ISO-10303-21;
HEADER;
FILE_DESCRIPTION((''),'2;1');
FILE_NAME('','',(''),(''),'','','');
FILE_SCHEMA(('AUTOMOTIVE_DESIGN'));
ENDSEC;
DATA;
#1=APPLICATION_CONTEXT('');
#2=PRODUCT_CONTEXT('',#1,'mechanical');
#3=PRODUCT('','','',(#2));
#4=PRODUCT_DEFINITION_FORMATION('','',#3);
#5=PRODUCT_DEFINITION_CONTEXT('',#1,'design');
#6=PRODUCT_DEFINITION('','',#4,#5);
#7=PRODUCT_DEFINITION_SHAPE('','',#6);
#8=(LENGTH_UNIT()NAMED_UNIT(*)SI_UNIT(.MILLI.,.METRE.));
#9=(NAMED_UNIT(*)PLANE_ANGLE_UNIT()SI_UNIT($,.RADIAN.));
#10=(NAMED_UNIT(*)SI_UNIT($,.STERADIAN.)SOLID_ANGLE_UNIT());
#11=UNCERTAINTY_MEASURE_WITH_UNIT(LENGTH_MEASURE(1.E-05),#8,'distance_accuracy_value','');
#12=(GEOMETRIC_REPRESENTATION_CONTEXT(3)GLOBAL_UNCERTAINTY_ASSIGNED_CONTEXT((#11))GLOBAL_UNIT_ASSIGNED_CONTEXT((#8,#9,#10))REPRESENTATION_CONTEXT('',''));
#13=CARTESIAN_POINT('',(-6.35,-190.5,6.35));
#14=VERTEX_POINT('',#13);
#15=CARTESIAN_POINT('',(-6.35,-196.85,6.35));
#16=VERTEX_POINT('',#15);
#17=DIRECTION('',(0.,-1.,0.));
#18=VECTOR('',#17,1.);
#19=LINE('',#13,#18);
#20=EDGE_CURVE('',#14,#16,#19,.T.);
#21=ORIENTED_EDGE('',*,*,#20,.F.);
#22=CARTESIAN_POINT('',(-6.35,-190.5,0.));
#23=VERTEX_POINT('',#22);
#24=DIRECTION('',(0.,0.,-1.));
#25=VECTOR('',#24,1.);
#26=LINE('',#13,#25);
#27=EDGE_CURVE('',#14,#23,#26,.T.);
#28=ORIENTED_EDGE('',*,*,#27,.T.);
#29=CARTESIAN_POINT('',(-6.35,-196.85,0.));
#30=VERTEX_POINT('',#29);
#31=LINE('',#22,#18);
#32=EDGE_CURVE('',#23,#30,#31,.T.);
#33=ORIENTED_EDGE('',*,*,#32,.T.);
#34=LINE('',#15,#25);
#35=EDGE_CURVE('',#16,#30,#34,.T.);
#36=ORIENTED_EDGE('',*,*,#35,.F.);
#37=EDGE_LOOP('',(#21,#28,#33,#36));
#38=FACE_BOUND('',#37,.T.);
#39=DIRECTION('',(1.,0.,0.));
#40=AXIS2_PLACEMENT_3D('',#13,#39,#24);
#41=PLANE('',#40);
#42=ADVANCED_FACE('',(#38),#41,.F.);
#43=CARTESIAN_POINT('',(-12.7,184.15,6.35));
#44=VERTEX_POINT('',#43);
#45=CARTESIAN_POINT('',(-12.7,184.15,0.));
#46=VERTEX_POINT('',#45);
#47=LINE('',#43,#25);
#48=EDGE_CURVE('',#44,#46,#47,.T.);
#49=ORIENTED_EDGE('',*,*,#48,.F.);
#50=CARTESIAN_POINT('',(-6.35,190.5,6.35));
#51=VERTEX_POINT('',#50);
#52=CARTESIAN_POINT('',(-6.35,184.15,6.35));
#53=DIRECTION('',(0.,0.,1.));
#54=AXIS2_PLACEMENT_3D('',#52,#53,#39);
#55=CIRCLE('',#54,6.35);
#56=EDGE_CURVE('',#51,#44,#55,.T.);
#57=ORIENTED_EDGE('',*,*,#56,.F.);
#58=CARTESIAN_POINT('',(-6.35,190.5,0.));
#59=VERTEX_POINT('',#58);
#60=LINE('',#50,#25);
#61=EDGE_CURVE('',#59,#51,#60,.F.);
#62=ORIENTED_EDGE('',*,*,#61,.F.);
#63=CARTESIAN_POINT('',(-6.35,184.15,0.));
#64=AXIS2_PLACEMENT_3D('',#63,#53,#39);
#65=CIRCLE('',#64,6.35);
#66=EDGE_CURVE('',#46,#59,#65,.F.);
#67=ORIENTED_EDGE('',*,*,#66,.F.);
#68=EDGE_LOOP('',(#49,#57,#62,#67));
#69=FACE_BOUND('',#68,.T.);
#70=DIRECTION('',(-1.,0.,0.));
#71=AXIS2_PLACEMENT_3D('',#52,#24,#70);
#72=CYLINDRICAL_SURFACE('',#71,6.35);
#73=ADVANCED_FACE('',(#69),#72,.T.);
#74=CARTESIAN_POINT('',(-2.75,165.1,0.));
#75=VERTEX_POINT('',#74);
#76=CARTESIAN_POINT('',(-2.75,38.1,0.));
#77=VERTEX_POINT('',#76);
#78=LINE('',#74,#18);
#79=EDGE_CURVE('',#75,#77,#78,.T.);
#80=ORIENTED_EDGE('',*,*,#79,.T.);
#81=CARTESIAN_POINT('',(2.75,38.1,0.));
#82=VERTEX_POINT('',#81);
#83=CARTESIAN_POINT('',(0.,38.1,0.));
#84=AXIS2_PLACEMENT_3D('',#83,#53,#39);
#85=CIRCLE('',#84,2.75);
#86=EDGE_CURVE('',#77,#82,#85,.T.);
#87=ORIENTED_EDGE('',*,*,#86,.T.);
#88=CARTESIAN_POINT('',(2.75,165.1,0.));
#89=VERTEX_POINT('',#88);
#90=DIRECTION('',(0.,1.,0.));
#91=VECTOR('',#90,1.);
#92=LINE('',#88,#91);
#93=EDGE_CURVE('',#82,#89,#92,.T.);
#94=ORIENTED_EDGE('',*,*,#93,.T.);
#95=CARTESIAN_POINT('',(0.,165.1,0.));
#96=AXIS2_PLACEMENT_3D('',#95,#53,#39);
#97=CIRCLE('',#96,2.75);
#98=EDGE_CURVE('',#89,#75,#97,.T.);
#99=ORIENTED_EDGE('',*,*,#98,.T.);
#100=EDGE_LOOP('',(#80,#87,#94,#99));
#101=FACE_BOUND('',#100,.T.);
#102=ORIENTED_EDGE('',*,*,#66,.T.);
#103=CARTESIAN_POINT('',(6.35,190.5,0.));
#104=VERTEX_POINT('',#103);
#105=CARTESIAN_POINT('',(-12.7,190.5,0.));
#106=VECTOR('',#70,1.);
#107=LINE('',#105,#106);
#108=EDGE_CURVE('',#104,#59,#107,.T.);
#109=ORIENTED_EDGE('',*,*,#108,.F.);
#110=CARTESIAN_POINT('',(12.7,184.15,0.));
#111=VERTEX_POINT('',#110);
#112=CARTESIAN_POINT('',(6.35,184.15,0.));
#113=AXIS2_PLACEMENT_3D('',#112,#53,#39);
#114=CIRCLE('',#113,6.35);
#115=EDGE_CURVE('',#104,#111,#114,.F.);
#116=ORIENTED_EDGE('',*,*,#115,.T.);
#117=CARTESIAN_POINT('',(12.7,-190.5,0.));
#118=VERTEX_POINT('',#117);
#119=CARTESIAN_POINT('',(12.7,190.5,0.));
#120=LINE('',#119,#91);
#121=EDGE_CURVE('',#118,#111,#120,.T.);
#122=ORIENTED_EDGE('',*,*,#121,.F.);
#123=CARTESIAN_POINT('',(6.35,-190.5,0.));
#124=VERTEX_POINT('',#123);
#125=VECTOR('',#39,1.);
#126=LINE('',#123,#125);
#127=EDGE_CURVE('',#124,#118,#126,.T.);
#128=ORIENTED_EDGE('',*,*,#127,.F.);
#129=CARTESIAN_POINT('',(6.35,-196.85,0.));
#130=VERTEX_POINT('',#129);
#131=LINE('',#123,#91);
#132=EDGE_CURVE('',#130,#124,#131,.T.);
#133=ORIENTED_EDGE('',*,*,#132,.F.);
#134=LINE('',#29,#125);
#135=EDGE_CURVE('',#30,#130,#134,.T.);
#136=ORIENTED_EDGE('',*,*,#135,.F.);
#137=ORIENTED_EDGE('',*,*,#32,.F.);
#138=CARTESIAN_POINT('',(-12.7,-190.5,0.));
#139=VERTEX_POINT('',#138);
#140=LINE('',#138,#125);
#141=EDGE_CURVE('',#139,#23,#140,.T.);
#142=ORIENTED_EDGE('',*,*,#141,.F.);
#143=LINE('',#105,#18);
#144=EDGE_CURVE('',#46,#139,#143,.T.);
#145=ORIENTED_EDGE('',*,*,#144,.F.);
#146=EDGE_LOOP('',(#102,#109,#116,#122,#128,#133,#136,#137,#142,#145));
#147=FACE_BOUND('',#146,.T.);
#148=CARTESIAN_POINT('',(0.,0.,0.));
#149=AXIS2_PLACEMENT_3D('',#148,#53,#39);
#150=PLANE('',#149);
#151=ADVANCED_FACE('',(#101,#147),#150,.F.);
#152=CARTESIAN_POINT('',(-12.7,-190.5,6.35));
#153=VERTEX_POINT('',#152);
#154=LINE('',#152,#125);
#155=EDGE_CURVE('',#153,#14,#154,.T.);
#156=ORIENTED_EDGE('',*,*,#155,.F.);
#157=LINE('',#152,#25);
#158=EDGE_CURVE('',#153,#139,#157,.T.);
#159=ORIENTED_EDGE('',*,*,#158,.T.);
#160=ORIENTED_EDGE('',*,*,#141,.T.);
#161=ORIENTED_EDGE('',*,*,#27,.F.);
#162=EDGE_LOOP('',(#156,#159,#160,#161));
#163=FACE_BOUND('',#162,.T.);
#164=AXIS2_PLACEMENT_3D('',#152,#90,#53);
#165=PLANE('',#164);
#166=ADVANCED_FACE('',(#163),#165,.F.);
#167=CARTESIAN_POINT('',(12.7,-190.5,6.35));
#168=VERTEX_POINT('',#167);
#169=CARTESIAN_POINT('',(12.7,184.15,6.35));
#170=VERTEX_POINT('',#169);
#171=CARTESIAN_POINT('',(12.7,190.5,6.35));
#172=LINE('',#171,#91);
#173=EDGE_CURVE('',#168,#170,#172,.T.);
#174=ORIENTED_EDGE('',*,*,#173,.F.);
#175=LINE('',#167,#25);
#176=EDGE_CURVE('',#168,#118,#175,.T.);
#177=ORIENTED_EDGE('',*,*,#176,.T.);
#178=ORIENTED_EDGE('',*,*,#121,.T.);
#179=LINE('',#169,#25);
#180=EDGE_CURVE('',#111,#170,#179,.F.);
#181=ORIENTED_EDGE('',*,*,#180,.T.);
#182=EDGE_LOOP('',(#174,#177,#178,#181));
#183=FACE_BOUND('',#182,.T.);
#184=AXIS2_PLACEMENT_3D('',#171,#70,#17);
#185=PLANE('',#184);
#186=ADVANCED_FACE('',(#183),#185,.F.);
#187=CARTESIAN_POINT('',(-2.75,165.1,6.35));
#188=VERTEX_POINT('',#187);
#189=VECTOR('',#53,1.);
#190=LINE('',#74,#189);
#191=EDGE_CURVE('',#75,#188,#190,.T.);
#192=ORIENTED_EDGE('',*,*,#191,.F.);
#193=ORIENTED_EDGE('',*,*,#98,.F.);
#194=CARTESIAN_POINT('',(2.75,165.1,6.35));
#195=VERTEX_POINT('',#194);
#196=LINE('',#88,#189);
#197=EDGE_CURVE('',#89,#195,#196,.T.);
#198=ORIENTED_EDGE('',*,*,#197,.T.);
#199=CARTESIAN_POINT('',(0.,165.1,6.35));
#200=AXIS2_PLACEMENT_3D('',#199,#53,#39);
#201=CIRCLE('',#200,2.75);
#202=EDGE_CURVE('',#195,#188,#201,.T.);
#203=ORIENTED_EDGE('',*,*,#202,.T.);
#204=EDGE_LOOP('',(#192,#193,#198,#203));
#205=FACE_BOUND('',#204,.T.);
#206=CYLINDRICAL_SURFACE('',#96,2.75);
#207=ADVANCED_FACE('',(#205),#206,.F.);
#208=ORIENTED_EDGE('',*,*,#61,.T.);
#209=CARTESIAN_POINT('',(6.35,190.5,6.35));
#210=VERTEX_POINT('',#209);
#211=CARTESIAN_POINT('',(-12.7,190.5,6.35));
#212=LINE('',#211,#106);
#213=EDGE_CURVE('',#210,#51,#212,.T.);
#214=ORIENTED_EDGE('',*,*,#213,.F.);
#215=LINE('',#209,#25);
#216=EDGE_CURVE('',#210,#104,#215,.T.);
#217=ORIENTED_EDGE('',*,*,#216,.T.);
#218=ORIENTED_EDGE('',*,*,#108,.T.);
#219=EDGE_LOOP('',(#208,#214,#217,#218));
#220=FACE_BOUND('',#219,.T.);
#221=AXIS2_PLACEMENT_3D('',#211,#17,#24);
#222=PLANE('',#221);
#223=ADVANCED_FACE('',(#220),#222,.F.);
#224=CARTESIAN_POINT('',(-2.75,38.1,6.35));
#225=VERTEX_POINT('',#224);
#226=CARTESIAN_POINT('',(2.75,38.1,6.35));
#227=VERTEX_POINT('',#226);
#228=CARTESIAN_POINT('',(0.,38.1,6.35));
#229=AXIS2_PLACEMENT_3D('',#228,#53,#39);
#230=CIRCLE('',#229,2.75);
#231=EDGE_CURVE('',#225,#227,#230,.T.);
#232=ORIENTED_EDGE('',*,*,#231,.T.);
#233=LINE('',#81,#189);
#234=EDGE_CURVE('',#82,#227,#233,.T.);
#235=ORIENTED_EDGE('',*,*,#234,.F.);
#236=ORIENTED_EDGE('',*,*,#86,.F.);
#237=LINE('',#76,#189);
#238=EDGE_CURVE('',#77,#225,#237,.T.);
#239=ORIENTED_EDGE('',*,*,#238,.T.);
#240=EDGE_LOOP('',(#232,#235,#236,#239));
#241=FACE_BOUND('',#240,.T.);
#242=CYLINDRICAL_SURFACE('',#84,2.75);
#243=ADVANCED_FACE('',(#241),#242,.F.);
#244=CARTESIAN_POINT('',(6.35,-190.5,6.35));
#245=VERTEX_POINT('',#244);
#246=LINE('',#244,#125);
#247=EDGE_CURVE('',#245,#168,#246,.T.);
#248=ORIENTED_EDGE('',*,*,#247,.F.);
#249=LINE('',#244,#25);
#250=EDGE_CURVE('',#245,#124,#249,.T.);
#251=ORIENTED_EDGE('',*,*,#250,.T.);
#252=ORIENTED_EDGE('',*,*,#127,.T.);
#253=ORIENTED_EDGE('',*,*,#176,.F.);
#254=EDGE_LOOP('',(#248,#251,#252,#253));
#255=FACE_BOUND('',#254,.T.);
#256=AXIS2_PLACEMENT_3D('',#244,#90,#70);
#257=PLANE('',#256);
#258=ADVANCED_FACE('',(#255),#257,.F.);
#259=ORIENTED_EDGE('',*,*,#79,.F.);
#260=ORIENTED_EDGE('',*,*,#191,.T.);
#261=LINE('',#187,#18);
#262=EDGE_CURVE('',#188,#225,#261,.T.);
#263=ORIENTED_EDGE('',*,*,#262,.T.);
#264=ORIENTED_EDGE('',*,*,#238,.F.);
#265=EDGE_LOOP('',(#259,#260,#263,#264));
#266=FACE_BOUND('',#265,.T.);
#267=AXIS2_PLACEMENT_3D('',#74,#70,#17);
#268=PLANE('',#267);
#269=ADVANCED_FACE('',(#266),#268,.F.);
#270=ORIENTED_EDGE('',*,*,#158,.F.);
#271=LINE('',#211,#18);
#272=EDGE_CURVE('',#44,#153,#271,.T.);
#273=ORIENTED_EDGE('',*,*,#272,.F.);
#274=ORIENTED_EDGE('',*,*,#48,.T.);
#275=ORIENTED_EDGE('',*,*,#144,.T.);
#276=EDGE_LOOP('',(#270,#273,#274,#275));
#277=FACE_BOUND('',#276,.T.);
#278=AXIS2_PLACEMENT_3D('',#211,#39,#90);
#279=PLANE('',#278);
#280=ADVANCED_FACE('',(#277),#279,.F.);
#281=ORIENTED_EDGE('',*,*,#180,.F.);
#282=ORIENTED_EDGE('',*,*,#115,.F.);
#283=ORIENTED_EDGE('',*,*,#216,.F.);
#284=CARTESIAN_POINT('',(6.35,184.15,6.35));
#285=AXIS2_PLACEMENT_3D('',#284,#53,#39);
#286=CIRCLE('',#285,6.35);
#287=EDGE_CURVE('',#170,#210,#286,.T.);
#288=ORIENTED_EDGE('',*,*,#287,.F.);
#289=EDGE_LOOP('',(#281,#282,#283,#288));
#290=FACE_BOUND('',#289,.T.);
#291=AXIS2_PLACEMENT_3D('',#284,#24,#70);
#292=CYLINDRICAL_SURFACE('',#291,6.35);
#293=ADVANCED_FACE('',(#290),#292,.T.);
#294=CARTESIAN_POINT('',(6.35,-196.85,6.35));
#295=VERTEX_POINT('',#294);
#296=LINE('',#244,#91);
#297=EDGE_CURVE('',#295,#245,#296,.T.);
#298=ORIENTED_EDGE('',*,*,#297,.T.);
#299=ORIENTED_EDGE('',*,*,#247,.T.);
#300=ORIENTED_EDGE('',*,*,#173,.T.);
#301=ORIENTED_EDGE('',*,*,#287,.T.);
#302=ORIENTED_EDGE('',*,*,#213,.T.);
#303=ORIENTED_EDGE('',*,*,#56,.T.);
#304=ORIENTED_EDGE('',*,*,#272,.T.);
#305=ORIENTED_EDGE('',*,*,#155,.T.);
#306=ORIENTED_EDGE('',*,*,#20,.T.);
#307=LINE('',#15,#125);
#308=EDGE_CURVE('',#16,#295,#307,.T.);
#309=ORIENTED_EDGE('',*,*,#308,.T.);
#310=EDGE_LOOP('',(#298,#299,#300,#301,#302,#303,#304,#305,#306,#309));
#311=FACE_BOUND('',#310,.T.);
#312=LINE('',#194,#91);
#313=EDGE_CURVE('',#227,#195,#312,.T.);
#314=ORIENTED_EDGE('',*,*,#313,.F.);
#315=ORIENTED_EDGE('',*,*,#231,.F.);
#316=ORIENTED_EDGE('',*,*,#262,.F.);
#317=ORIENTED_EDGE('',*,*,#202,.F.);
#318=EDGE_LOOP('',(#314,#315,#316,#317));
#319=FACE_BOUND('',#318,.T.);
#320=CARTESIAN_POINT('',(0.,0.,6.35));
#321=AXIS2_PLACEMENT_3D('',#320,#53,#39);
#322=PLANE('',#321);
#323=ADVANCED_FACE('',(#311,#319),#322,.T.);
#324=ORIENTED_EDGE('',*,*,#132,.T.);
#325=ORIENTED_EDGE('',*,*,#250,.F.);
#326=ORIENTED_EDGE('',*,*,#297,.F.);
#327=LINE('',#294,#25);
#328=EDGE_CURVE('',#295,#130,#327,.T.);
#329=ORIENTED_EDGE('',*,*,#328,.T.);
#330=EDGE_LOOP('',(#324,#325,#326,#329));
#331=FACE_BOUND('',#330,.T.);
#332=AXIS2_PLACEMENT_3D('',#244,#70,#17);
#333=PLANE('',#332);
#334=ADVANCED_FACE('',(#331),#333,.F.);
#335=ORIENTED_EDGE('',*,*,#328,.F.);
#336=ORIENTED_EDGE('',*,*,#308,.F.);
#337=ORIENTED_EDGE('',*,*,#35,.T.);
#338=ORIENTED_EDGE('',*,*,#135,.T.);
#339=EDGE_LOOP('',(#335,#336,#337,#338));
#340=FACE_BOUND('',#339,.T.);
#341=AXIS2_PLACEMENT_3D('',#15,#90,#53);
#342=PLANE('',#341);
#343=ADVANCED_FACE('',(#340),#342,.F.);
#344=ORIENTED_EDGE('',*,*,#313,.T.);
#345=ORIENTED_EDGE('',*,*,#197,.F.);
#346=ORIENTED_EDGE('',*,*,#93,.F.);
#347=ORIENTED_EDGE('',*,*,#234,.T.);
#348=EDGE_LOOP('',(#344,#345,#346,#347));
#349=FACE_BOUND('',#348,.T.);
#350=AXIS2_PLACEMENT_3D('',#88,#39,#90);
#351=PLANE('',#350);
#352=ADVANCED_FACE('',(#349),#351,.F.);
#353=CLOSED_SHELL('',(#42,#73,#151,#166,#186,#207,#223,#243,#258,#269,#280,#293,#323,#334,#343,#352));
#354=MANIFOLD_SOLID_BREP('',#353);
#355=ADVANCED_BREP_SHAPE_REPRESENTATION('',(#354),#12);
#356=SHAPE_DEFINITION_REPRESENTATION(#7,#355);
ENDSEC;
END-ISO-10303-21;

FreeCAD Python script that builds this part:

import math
import FreeCAD as App
import Part
import Sketcher
Q = App.Units.Quantity


def edges_at(feature, points):
    """Names of the edges that pass closest to the given points."""
    edges = feature.Shape.Edges
    near = lambda p: min(range(len(edges)), key=lambda i: edges[i].distToShape(Part.Vertex(*p))[0])
    return sorted({f"Edge{near(p) + 1}" for p in points})

doc = App.newDocument("Part")
body = doc.addObject("PartDesign::Body", "Body")

sketch1 = body.newObject("Sketcher::SketchObject", "Sketch")
sketch1.AttachmentSupport = (doc.getObject("XY_Plane"), [""])
sketch1.MapMode = "FlatFace"
sketch1.addGeometry([
    Part.LineSegment(App.Vector(6, -190, 0), App.Vector(13, -190, 0)),
    Part.LineSegment(App.Vector(13, -190, 0), App.Vector(13, 190, 0)),
    Part.LineSegment(App.Vector(13, 190, 0), App.Vector(-13, 190, 0)),
    Part.LineSegment(App.Vector(-13, 190, 0), App.Vector(-13, -190, 0)),
    Part.LineSegment(App.Vector(-13, -190, 0), App.Vector(-6, -190, 0)),
    Part.LineSegment(App.Vector(-6, -190, 0), App.Vector(-6, -197, 0)),
    Part.LineSegment(App.Vector(-6, -197, 0), App.Vector(6, -197, 0)),
    Part.LineSegment(App.Vector(6, -197, 0), App.Vector(6, -190, 0)),
], False)
sketch1.addConstraint([
    Sketcher.Constraint("Coincident", 0, 2, 1, 1),
    Sketcher.Constraint("Coincident", 1, 2, 2, 1),
    Sketcher.Constraint("Coincident", 2, 2, 3, 1),
    Sketcher.Constraint("Coincident", 3, 2, 4, 1),
    Sketcher.Constraint("Coincident", 4, 2, 5, 1),
    Sketcher.Constraint("Coincident", 5, 2, 6, 1),
    Sketcher.Constraint("Coincident", 6, 2, 7, 1),
    Sketcher.Constraint("Coincident", 7, 2, 0, 1),
    Sketcher.Constraint("Horizontal", 0),
    Sketcher.Constraint("Vertical", 1),
    Sketcher.Constraint("Horizontal", 2),
    Sketcher.Constraint("Vertical", 3),
    Sketcher.Constraint("Horizontal", 4),
    Sketcher.Constraint("Vertical", 5),
    Sketcher.Constraint("Horizontal", 6),
    Sketcher.Constraint("Vertical", 7),
    Sketcher.Constraint("Symmetric", 0, 2, 2, 2, -1, 1),
    Sketcher.Constraint("Symmetric", 4, 2, 7, 2, -2),
    Sketcher.Constraint("Equal", 4, 5),
    Sketcher.Constraint("DistanceX", 2, 2, 2, 1, Q("1 in")),
    Sketcher.Constraint("DistanceY", 1, 1, 1, 2, Q("15 in")),
    Sketcher.Constraint("DistanceX", 6, 1, 6, 2, Q("0.5 in")),
])
pad1 = body.newObject("PartDesign::Pad", "Pad")
pad1.Profile = sketch1
pad1.Length = Q("0.25 in")

sketch2 = body.newObject("Sketcher::SketchObject", "Sketch001")
sketch2.AttachmentSupport = (doc.getObject("XY_Plane"), [""])
sketch2.MapMode = "FlatFace"
sketch2.AttachmentOffset = App.Placement(App.Vector(0, 0, 0.25 * 25.4), App.Rotation())
sketch2.addGeometry([
    Part.LineSegment(App.Vector(2.8, 38.1, 0), App.Vector(2.8, 165.1, 0)),
    Part.ArcOfCircle(Part.Circle(App.Vector(0, 165.1, 0), App.Vector(0, 0, 1), 2.8), math.radians(0), math.radians(180)),
    Part.LineSegment(App.Vector(-2.8, 165.1, 0), App.Vector(-2.8, 38.1, 0)),
    Part.ArcOfCircle(Part.Circle(App.Vector(0, 38.1, 0), App.Vector(0, 0, 1), 2.8), math.radians(180), math.radians(360)),
], False)
sketch2.addConstraint([
    Sketcher.Constraint("Tangent", 0, 2, 1, 1),
    Sketcher.Constraint("Tangent", 1, 2, 2, 1),
    Sketcher.Constraint("Tangent", 2, 2, 3, 1),
    Sketcher.Constraint("Tangent", 3, 2, 0, 1),
    Sketcher.Constraint("Vertical", 0),
    Sketcher.Constraint("Vertical", 2),
    Sketcher.Constraint("PointOnObject", 1, 3, -2),
    Sketcher.Constraint("DistanceY", 0, 1, 0, 2, Q("5 in")),
    Sketcher.Constraint("DistanceY", -1, 1, 1, 3, Q("6.5 in")),
    Sketcher.Constraint("Radius", 1, Q("2.75 mm")),
])
pocket1 = body.newObject("PartDesign::Pocket", "Pocket")
pocket1.Profile = sketch2
pocket1.Type = "ThroughAll"
doc.recompute()

fillet = body.newObject("PartDesign::Fillet", "Fillet")
fillet.Base = (pocket1, edges_at(pocket1, [(-12.7, 190.5, 3.175), (12.7, 190.5, 3.175)]))
fillet.Radius = Q("0.25 in")

doc.recompute()
